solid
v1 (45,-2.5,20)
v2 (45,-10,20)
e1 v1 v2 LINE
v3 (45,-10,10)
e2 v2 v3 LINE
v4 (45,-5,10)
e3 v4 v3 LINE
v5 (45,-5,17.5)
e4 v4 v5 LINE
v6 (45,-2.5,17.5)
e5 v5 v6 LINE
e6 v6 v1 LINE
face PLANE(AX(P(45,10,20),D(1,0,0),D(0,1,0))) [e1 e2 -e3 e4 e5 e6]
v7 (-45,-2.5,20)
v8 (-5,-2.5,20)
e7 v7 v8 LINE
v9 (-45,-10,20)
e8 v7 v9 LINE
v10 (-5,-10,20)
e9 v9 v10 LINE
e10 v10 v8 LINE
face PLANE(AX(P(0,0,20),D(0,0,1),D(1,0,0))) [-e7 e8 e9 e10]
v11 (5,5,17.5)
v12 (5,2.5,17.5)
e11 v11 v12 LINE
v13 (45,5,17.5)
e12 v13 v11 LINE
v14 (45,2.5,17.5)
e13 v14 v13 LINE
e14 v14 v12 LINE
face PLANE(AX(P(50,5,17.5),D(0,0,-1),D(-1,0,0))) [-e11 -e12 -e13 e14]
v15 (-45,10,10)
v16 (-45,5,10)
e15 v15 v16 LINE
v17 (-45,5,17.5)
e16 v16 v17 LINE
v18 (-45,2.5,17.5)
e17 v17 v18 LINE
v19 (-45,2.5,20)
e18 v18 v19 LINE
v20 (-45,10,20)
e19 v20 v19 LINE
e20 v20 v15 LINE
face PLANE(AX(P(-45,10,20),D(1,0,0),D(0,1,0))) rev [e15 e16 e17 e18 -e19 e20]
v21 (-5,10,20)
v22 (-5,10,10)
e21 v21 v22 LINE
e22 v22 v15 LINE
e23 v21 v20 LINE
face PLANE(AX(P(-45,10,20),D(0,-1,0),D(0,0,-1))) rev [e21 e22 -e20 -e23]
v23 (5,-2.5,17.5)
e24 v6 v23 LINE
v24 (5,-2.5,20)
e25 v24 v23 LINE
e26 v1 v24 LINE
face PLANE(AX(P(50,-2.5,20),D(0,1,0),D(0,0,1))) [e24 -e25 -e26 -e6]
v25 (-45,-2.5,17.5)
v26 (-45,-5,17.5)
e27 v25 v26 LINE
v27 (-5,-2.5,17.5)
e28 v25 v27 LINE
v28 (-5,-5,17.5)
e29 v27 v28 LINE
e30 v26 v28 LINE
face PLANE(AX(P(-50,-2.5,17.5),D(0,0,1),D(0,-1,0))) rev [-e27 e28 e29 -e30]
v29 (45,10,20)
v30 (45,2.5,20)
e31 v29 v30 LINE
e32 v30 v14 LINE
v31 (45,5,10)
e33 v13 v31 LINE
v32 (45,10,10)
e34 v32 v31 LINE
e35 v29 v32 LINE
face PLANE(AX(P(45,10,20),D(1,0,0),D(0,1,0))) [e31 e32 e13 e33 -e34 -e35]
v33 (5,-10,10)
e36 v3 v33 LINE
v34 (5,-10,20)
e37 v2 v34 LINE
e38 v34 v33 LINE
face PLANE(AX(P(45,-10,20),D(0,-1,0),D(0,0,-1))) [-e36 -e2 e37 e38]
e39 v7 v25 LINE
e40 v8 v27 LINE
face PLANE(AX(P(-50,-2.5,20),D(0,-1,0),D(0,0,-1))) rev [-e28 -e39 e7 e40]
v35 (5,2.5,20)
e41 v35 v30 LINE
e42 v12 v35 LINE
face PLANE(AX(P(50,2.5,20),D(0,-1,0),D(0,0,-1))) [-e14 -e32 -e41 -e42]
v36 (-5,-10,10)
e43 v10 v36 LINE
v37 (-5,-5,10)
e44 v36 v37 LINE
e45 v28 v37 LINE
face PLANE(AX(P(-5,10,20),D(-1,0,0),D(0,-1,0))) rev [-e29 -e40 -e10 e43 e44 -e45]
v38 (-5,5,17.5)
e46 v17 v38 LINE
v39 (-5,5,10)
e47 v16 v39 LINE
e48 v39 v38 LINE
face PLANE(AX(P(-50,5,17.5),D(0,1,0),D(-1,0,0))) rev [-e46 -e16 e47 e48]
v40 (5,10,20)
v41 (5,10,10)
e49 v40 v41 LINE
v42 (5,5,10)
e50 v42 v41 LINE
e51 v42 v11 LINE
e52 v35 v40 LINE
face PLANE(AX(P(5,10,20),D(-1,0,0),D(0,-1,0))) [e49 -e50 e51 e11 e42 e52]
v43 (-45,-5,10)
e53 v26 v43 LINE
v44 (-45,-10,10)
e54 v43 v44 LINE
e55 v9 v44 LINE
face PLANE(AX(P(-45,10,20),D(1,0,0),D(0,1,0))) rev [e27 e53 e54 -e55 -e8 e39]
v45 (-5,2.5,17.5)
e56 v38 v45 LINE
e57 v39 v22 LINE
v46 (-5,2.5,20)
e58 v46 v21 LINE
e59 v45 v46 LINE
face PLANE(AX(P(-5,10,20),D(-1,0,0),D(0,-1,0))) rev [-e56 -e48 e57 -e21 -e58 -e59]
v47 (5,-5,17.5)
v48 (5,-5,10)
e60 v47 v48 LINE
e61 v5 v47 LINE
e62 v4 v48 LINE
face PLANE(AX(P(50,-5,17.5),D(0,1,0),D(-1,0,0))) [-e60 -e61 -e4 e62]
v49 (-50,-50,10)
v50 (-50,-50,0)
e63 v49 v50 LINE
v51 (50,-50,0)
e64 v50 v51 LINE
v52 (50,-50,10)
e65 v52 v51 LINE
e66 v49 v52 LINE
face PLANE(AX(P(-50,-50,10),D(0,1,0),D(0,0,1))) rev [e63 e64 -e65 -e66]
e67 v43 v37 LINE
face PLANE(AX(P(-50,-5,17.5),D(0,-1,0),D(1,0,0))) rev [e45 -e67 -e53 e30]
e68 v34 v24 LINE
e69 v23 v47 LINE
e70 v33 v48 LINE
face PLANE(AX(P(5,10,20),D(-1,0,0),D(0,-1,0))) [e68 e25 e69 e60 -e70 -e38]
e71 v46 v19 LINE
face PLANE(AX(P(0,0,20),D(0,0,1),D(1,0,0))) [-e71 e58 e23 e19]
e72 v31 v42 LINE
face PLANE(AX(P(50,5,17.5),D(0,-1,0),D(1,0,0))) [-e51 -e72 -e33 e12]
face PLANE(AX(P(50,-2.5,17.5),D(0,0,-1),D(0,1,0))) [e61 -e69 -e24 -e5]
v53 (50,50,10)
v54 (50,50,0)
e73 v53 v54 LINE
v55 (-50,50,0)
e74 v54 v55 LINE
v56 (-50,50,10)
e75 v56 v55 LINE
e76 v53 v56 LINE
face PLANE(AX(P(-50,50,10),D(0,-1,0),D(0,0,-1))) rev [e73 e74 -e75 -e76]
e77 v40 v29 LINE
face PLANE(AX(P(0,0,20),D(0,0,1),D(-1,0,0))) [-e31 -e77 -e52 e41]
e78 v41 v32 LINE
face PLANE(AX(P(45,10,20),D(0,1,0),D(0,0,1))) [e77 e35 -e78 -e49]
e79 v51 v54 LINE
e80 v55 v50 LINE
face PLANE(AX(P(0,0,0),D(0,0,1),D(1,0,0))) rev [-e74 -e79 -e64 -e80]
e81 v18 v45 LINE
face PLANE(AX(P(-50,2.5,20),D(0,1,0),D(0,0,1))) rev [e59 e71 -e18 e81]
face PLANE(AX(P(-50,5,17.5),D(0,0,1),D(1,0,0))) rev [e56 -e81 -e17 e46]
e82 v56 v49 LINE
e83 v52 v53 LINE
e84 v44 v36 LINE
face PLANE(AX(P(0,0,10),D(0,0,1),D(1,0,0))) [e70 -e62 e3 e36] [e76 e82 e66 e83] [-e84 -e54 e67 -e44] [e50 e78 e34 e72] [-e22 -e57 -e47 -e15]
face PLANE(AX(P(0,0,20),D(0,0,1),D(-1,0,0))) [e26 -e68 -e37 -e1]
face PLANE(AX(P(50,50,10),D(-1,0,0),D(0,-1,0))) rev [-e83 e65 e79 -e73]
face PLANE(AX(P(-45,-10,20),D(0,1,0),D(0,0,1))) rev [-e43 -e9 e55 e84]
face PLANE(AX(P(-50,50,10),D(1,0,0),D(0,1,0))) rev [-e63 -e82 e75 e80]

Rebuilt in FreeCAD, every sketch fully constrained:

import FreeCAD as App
import Part
import Sketcher
Q = App.Units.Quantity

doc = App.newDocument("Part")
body = doc.addObject("PartDesign::Body", "Body")

# Sketch on XY plane
sketch1 = body.newObject("Sketcher::SketchObject", "Sketch")
sketch1.AttachmentSupport = (doc.getObject("XY_Plane"), [""])
sketch1.MapMode = "FlatFace"
sketch1.addGeometry([
    Part.LineSegment(App.Vector(-50, 50, 0), App.Vector(-50, -50, 0)),
    Part.LineSegment(App.Vector(-50, -50, 0), App.Vector(50, -50, 0)),
    Part.LineSegment(App.Vector(50, -50, 0), App.Vector(50, 50, 0)),
    Part.LineSegment(App.Vector(50, 50, 0), App.Vector(-50, 50, 0)),
], False)
sketch1.addConstraint([
    Sketcher.Constraint("Coincident", 0, 2, 1, 1),
    Sketcher.Constraint("Coincident", 1, 2, 2, 1),
    Sketcher.Constraint("Coincident", 2, 2, 3, 1),
    Sketcher.Constraint("Coincident", 3, 2, 0, 1),
    Sketcher.Constraint("Vertical", 0),
    Sketcher.Constraint("Horizontal", 1),
    Sketcher.Constraint("Vertical", 2),
    Sketcher.Constraint("Horizontal", 3),
    Sketcher.Constraint("Symmetric", 0, 2, 2, 2, -1, 1),
    Sketcher.Constraint("Equal", 3, 0),
    Sketcher.Constraint("DistanceX", 1, 1, 1, 2, Q("100 mm")),
])
pad1 = body.newObject("PartDesign::Pad", "Pad")
pad1.Profile = sketch1
pad1.Length = 10

# Sketch on XY plane
sketch2 = body.newObject("Sketcher::SketchObject", "Sketch001")
sketch2.AttachmentSupport = (doc.getObject("XY_Plane"), [""])
sketch2.MapMode = "FlatFace"
sketch2.AttachmentOffset = App.Placement(App.Vector(0, 0, 10), App.Rotation())
sketch2.addGeometry([
    Part.LineSegment(App.Vector(-45, 10, 0), App.Vector(-45, -10, 0)),
    Part.LineSegment(App.Vector(-45, -10, 0), App.Vector(-5, -10, 0)),
    Part.LineSegment(App.Vector(-5, -10, 0), App.Vector(-5, 10, 0)),
    Part.LineSegment(App.Vector(-5, 10, 0), App.Vector(-45, 10, 0)),
], False)
sketch2.addConstraint([
    Sketcher.Constraint("Coincident", 0, 2, 1, 1),
    Sketcher.Constraint("Coincident", 1, 2, 2, 1),
    Sketcher.Constraint("Coincident", 2, 2, 3, 1),
    Sketcher.Constraint("Coincident", 3, 2, 0, 1),
    Sketcher.Constraint("Vertical", 0),
    Sketcher.Constraint("Horizontal", 1),
    Sketcher.Constraint("Vertical", 2),
    Sketcher.Constraint("Horizontal", 3),
    Sketcher.Constraint("DistanceX", 1, 1, 1, 2, Q("40 mm")),
    Sketcher.Constraint("DistanceY", 0, 2, 0, 1, Q("20 mm")),
    Sketcher.Constraint("DistanceX", 0, 2, -1, 1, Q("45 mm")),
    Sketcher.Constraint("DistanceY", 0, 2, -1, 1, Q("10 mm")),
])
pad2 = body.newObject("PartDesign::Pad", "Pad001")
pad2.Profile = sketch2
pad2.Length = 10

# Sketch on YZ plane
sketch3 = body.newObject("Sketcher::SketchObject", "Sketch002")
sketch3.AttachmentSupport = (doc.getObject("YZ_Plane"), [""])
sketch3.MapMode = "FlatFace"
sketch3.AttachmentOffset = App.Placement(App.Vector(0, 0, -5), App.Rotation())
sketch3.addGeometry([
    Part.LineSegment(App.Vector(5, 10, 0), App.Vector(5, 17.5, 0)),  # 0
    Part.LineSegment(App.Vector(5, 17.5, 0), App.Vector(2.5, 17.5, 0)),  # 1
    Part.LineSegment(App.Vector(2.5, 17.5, 0), App.Vector(2.5, 20, 0)),  # 2
    Part.LineSegment(App.Vector(2.5, 20, 0), App.Vector(-2.5, 20, 0)),  # 3
    Part.LineSegment(App.Vector(-2.5, 20, 0), App.Vector(-2.5, 17.5, 0)),  # 4
    Part.LineSegment(App.Vector(-2.5, 17.5, 0), App.Vector(-5, 17.5, 0)),  # 5
    Part.LineSegment(App.Vector(-5, 17.5, 0), App.Vector(-5, 10, 0)),  # 6
    Part.LineSegment(App.Vector(-5, 10, 0), App.Vector(5, 10, 0)),  # 7
], False)
sketch3.addConstraint([
    Sketcher.Constraint("Coincident", 0, 2, 1, 1),
    Sketcher.Constraint("Coincident", 1, 2, 2, 1),
    Sketcher.Constraint("Coincident", 2, 2, 3, 1),
    Sketcher.Constraint("Coincident", 3, 2, 4, 1),
    Sketcher.Constraint("Coincident", 4, 2, 5, 1),
    Sketcher.Constraint("Coincident", 5, 2, 6, 1),
    Sketcher.Constraint("Coincident", 6, 2, 7, 1),
    Sketcher.Constraint("Coincident", 7, 2, 0, 1),
    Sketcher.Constraint("Vertical", 0),
    Sketcher.Constraint("Horizontal", 1),
    Sketcher.Constraint("Vertical", 2),
    Sketcher.Constraint("Horizontal", 3),
    Sketcher.Constraint("Vertical", 4),
    Sketcher.Constraint("Horizontal", 5),
    Sketcher.Constraint("Vertical", 6),
    Sketcher.Constraint("Horizontal", 7),
    Sketcher.Constraint("Symmetric", 1, 2, 4, 2, -2),
    Sketcher.Constraint("Equal", 1, 5),
    Sketcher.Constraint("Equal", 5, 2),
    Sketcher.Constraint("DistanceX", 3, 2, 3, 1, Q("5 mm")),
    Sketcher.Constraint("DistanceX", 7, 1, 7, 2, Q("10 mm")),
    Sketcher.Constraint("DistanceY", 0, 1, 0, 2, Q("7.5 mm")),
    Sketcher.Constraint("DistanceY", -1, 1, 2, 2, Q("20 mm")),
])
pocket1 = body.newObject("PartDesign::Pocket", "Pocket")
pocket1.Profile = sketch3
pocket1.Type = "ThroughAll"
doc.recompute()

mirrored = body.newObject("PartDesign::Mirrored", "Mirrored")
mirrored.Originals = [pad2, pocket1]
mirrored.MirrorPlane = (doc.getObject("YZ_Plane"), [""])
body.Tip = mirrored

doc.recompute()
